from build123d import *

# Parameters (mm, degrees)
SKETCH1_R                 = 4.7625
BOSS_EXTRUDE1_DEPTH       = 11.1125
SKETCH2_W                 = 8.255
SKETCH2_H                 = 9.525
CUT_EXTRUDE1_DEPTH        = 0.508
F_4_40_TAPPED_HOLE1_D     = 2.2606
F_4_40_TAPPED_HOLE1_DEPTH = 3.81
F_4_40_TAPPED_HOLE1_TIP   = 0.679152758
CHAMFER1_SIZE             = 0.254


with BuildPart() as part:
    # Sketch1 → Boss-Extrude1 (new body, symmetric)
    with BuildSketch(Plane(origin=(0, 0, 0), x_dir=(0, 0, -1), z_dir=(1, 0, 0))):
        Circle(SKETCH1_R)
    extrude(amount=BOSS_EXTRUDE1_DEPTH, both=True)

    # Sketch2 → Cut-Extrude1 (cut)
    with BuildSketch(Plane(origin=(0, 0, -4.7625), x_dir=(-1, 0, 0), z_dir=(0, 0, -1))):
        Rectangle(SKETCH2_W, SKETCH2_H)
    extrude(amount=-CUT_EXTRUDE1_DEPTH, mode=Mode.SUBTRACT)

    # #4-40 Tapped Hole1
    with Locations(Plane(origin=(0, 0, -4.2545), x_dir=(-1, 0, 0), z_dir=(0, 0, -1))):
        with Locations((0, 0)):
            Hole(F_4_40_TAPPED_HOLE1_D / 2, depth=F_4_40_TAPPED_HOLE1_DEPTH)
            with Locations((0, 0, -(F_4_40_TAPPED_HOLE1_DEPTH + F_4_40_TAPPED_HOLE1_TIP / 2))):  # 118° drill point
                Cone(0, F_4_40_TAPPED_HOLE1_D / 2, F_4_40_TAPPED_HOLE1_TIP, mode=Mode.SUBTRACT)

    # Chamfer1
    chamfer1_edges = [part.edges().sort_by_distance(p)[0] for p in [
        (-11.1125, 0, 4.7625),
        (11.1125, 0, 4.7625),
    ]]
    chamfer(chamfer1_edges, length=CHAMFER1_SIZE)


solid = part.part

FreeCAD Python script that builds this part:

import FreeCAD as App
import Part
import Sketcher
Q = App.Units.Quantity


def edges_at(feature, points):
    """Names of the edges that pass closest to the given points."""
    edges = feature.Shape.Edges
    near = lambda p: min(range(len(edges)), key=lambda i: edges[i].distToShape(Part.Vertex(*p))[0])
    return sorted({f"Edge{near(p) + 1}" for p in points})


def add_polygon(sketch, points):
    """Adds a closed chain of lines whose ends are joined by coincident constraints."""
    first, n = sketch.GeometryCount, len(points)
    for a, b in zip(points, points[1:] + points[:1]):
        sketch.addGeometry(Part.LineSegment(App.Vector(*a, 0), App.Vector(*b, 0)), False)
    for i in range(n):
        sketch.addConstraint(Sketcher.Constraint("Coincident", first + i, 2, first + (i + 1) % n, 1))

doc = App.newDocument("Part")
body = doc.addObject("PartDesign::Body", "Body")

# Sketch on YZ plane
sketch1 = body.newObject("Sketcher::SketchObject", "Sketch")
sketch1.AttachmentSupport = (doc.getObject("YZ_Plane"), [""])
sketch1.MapMode = "FlatFace"
sketch1.addGeometry(Part.Circle(App.Vector(0, 0, 0), App.Vector(0, 0, 1), 4.7625), False)
sketch1.addConstraint([
    Sketcher.Constraint("Coincident", 0, 3, -1, 1),
    Sketcher.Constraint("Diameter", 0, Q("0.375 in")),
])
pad1 = body.newObject("PartDesign::Pad", "Pad")
pad1.Profile = sketch1
pad1.Length = Q("0.875 in")
pad1.Midplane = True

# Sketch on XY plane
sketch2 = body.newObject("Sketcher::SketchObject", "Sketch001")
sketch2.AttachmentSupport = (doc.getObject("XY_Plane"), [""])
sketch2.MapMode = "FlatFace"
sketch2.AttachmentOffset = App.Placement(App.Vector(0, 0, -0.1875 * 25.4), App.Rotation())
add_polygon(sketch2, [(4.1275, 4.7625), (4.1275, -4.7625), (-4.1275, -4.7625), (-4.1275, 4.7625)])  # lines 0-3
sketch2.addConstraint([
    Sketcher.Constraint("Vertical", 0),
    Sketcher.Constraint("Horizontal", 1),
    Sketcher.Constraint("Vertical", 2),
    Sketcher.Constraint("Horizontal", 3),
    Sketcher.Constraint("Symmetric", 0, 2, 2, 2, -1, 1),
    Sketcher.Constraint("DistanceX", 1, 2, 1, 1, Q("0.325 in")),
    Sketcher.Constraint("DistanceY", 0, 2, 0, 1, Q("0.375 in")),
])
pocket1 = body.newObject("PartDesign::Pocket", "Pocket")
pocket1.Profile = sketch2
pocket1.Length = Q("0.02 in")
pocket1.Reversed = True

# Sketch on XY plane
sketch3 = body.newObject("Sketcher::SketchObject", "Sketch002")
sketch3.AttachmentSupport = (doc.getObject("XY_Plane"), [""])
sketch3.MapMode = "FlatFace"
sketch3.AttachmentOffset = App.Placement(App.Vector(0, 0, -0.1675 * 25.4), App.Rotation())
sketch3.addGeometry(Part.Circle(App.Vector(0, 0, 0), App.Vector(0, 0, 1), 1.1303), False)
sketch3.addConstraint([
    Sketcher.Constraint("Coincident", 0, 3, -1, 1),
    Sketcher.Constraint("Diameter", 0, Q("0.089 in")),
])
doc.recompute()
hole = body.newObject("PartDesign::Hole", "Hole")
hole.Profile = sketch3
hole.ThreadType = "None"
hole.Diameter = Q("0.089 in")
hole.DepthType = "Dimension"
hole.Depth = Q("0.15 in")
hole.DrillPoint = "Angled"
hole.DrillPointAngle = 118
hole.Reversed = True
doc.recompute()

chamfer = body.newObject("PartDesign::Chamfer", "Chamfer")
chamfer.Base = (hole, edges_at(hole, [(-11.113, 0, 4.763), (11.113, 0, 4.763)]))
chamfer.Size = Q("0.01 in")

doc.recompute()
